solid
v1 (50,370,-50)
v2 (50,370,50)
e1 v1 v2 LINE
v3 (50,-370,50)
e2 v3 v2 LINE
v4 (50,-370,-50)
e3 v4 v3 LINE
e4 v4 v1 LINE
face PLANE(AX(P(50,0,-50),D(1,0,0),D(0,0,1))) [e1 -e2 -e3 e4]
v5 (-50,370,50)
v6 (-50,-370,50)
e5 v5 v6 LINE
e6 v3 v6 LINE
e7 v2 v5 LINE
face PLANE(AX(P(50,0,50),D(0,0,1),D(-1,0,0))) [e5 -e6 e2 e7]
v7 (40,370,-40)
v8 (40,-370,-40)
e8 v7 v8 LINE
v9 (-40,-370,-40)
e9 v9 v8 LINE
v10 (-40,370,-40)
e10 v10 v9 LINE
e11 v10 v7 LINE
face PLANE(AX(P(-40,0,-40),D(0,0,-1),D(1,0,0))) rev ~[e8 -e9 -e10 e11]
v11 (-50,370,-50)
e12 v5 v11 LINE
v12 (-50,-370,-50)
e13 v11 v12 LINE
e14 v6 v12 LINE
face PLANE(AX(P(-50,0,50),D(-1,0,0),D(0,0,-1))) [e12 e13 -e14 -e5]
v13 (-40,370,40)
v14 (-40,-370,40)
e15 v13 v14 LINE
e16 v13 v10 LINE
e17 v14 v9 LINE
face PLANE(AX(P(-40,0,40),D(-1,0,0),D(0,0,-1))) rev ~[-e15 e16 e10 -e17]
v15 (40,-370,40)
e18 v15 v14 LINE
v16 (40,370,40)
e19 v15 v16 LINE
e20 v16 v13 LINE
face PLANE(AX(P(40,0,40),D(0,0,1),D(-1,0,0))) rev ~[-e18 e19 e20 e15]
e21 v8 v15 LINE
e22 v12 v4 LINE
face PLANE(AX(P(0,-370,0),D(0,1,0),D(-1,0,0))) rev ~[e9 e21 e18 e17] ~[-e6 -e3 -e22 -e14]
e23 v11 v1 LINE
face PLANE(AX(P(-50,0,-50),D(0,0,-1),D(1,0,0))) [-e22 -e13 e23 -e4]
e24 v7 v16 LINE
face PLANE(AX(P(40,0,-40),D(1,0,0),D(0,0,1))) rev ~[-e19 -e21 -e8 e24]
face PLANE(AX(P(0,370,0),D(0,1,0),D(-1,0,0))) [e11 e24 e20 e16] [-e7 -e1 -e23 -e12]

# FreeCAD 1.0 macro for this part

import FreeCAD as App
import Part
import Sketcher

V = App.Vector

doc = App.newDocument("Part")
body = doc.addObject("PartDesign::Body", "Body")

# Sketch on XZ plane
sketch1 = body.newObject("Sketcher::SketchObject", "Sketch")
sketch1.AttachmentSupport = (doc.getObject("XZ_Plane"), [""])
sketch1.MapMode = "FlatFace"
sketch1.addGeometry(Part.LineSegment(V(-50, 50, 0), V(50, 50, 0)), False)
sketch1.addGeometry(Part.LineSegment(V(50, 50, 0), V(50, -50, 0)), False)
sketch1.addGeometry(Part.LineSegment(V(50, -50, 0), V(-50, -50, 0)), False)
sketch1.addGeometry(Part.LineSegment(V(-50, -50, 0), V(-50, 50, 0)), False)
sketch1.addGeometry(Part.LineSegment(V(40, -40, 0), V(40, 40, 0)), False)
sketch1.addGeometry(Part.LineSegment(V(40, 40, 0), V(-40, 40, 0)), False)
sketch1.addGeometry(Part.LineSegment(V(-40, 40, 0), V(-40, -40, 0)), False)
sketch1.addGeometry(Part.LineSegment(V(-40, -40, 0), V(40, -40, 0)), False)
sketch1.addConstraint(Sketcher.Constraint("Coincident", 0, 2, 1, 1))
sketch1.addConstraint(Sketcher.Constraint("Coincident", 1, 2, 2, 1))
sketch1.addConstraint(Sketcher.Constraint("Coincident", 2, 2, 3, 1))
sketch1.addConstraint(Sketcher.Constraint("Coincident", 3, 2, 0, 1))
sketch1.addConstraint(Sketcher.Constraint("Coincident", 4, 2, 5, 1))
sketch1.addConstraint(Sketcher.Constraint("Coincident", 5, 2, 6, 1))
sketch1.addConstraint(Sketcher.Constraint("Coincident", 6, 2, 7, 1))
sketch1.addConstraint(Sketcher.Constraint("Coincident", 7, 2, 4, 1))
sketch1.addConstraint(Sketcher.Constraint("Horizontal", 0))
sketch1.addConstraint(Sketcher.Constraint("Vertical", 1))
sketch1.addConstraint(Sketcher.Constraint("Horizontal", 2))
sketch1.addConstraint(Sketcher.Constraint("Vertical", 3))
sketch1.addConstraint(Sketcher.Constraint("Vertical", 4))
sketch1.addConstraint(Sketcher.Constraint("Horizontal", 5))
sketch1.addConstraint(Sketcher.Constraint("Vertical", 6))
sketch1.addConstraint(Sketcher.Constraint("Horizontal", 7))
sketch1.addConstraint(Sketcher.Constraint("Symmetric", 0, 2, 2, 2, -1, 1))
sketch1.addConstraint(Sketcher.Constraint("Symmetric", 4, 2, 6, 2, -1, 1))
sketch1.addConstraint(Sketcher.Constraint("Equal", 2, 1))
sketch1.addConstraint(Sketcher.Constraint("Equal", 7, 4))
sketch1.addConstraint(Sketcher.Constraint("DistanceX", 0, 1, 0, 2, 100.0))
sketch1.addConstraint(Sketcher.Constraint("DistanceX", 4, 2, 0, 2, 10.0))
pad1 = body.newObject("PartDesign::Pad", "Pad")
pad1.Profile = sketch1
pad1.Length = 740
pad1.Midplane = True

doc.recompute()
